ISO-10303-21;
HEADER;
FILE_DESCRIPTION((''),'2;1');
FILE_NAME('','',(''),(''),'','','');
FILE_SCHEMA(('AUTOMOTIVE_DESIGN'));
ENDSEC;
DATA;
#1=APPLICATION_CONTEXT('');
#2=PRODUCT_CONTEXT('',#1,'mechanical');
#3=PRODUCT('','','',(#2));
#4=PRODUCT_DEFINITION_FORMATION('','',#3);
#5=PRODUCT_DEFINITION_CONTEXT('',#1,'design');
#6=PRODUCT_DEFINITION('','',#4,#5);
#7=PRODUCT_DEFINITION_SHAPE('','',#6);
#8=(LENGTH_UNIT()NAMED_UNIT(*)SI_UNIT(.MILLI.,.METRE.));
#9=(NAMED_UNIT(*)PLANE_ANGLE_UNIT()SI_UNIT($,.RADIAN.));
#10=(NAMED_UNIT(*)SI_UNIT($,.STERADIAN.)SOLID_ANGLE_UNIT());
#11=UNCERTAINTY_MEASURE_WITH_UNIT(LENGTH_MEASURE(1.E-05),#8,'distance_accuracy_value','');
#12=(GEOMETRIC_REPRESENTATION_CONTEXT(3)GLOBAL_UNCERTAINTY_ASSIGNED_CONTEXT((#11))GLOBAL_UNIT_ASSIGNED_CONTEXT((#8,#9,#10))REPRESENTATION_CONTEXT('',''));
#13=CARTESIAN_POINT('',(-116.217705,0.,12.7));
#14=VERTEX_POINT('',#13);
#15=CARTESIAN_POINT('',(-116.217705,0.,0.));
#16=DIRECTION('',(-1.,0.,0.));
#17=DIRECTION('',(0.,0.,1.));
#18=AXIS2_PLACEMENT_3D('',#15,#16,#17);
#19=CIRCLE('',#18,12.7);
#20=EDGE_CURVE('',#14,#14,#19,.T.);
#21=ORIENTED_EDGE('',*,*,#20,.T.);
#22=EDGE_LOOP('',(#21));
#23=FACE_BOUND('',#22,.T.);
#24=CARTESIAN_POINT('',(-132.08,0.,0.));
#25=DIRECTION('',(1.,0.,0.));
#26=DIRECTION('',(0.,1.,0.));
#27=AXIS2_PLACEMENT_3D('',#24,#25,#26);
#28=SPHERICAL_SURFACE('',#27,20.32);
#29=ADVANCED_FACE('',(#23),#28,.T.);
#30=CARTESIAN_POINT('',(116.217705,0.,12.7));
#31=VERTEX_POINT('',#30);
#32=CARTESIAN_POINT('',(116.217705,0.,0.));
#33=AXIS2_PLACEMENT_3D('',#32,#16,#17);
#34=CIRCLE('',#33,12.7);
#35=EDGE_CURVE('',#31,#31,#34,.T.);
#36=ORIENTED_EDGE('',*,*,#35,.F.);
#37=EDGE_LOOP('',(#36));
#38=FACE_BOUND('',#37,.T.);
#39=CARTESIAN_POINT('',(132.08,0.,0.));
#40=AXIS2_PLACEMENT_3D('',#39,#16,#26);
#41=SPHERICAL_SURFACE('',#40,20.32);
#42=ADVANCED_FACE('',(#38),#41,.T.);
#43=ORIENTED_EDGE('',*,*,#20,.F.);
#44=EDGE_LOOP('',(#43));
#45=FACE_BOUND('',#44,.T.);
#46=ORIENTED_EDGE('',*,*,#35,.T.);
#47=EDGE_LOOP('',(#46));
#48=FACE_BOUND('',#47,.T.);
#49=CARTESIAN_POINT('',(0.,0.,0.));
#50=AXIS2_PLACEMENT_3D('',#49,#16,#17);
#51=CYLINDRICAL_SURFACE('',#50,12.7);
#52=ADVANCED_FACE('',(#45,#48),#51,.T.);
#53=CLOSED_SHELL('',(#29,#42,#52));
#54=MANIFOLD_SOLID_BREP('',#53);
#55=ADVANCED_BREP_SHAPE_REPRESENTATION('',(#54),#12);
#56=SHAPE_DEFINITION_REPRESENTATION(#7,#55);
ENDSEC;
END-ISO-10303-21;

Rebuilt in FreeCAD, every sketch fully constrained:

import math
import FreeCAD as App
import Part
import Sketcher
from FreeCAD import Vector
Q = App.Units.Quantity

doc = App.newDocument("Part")
params = doc.addObject("Spreadsheet::Sheet", "Params")
for row, (alias, value) in enumerate([
    ("sketch1_radius", "0.8 in"),
    ("sketch1_width", "6 in"),
    ("sketch1_height", "0.5 in"),
    ("revolution_angle", "360 deg"),
], start=1):
    params.set(f"A{row}", alias)
    params.set(f"B{row}", "=" + value)
    params.setAlias(f"B{row}", alias)

body = doc.addObject("PartDesign::Body", "Body")

# Sketch on XY plane
sketch1 = body.newObject("Sketcher::SketchObject", "Sketch")
sketch1.AttachmentSupport = (doc.getObject("XY_Plane"), [""])
sketch1.MapMode = "FlatFace"
sketch1.addGeometry(Part.LineSegment(Vector(0, 13, 0), Vector(0, 0, 0)), False)
sketch1.addGeometry(Part.LineSegment(Vector(0, 0, 0), Vector(152, 0, 0)), False)
sketch1.addGeometry(Part.ArcOfCircle(Part.Circle(Vector(132, 0, 0), Vector(0, 0, 1), 20), math.radians(0), math.radians(141)), False)
sketch1.addGeometry(Part.LineSegment(Vector(116, 13, 0), Vector(0, 13, 0)), False)
sketch1.addConstraint(Sketcher.Constraint("Coincident", 0, 2, 1, 1))
sketch1.addConstraint(Sketcher.Constraint("Coincident", 1, 2, 2, 1))
sketch1.addConstraint(Sketcher.Constraint("Coincident", 2, 2, 3, 1))
sketch1.addConstraint(Sketcher.Constraint("Coincident", 3, 2, 0, 1))
sketch1.addConstraint(Sketcher.Constraint("Vertical", 0))
sketch1.addConstraint(Sketcher.Constraint("Horizontal", 1))
sketch1.addConstraint(Sketcher.Constraint("Horizontal", 3))
sketch1.addConstraint(Sketcher.Constraint("Coincident", 0, 2, -1, 1))
sketch1.addConstraint(Sketcher.Constraint("PointOnObject", 2, 3, -1))
sketch1.addConstraint(Sketcher.Constraint("Radius", 2, Q("0.8 in")))
sketch1.addConstraint(Sketcher.Constraint("DistanceX", 1, 1, 1, 2, Q("6 in")))
sketch1.addConstraint(Sketcher.Constraint("DistanceY", 0, 2, 0, 1, Q("0.5 in")))
sketch1.setExpression("Constraints[9]", "Params.sketch1_radius")
sketch1.setExpression("Constraints[10]", "Params.sketch1_width")
sketch1.setExpression("Constraints[11]", "Params.sketch1_height")
revolution = body.newObject("PartDesign::Revolution", "Revolution")
revolution.Profile = sketch1
revolution.ReferenceAxis = (sketch1, ["H_Axis"])
revolution.setExpression("Angle", "Params.revolution_angle")
doc.recompute()

mirrored = body.newObject("PartDesign::Mirrored", "Mirrored")
mirrored.Originals = [revolution]
mirrored.MirrorPlane = (doc.getObject("YZ_Plane"), [""])
body.Tip = mirrored

doc.recompute()
